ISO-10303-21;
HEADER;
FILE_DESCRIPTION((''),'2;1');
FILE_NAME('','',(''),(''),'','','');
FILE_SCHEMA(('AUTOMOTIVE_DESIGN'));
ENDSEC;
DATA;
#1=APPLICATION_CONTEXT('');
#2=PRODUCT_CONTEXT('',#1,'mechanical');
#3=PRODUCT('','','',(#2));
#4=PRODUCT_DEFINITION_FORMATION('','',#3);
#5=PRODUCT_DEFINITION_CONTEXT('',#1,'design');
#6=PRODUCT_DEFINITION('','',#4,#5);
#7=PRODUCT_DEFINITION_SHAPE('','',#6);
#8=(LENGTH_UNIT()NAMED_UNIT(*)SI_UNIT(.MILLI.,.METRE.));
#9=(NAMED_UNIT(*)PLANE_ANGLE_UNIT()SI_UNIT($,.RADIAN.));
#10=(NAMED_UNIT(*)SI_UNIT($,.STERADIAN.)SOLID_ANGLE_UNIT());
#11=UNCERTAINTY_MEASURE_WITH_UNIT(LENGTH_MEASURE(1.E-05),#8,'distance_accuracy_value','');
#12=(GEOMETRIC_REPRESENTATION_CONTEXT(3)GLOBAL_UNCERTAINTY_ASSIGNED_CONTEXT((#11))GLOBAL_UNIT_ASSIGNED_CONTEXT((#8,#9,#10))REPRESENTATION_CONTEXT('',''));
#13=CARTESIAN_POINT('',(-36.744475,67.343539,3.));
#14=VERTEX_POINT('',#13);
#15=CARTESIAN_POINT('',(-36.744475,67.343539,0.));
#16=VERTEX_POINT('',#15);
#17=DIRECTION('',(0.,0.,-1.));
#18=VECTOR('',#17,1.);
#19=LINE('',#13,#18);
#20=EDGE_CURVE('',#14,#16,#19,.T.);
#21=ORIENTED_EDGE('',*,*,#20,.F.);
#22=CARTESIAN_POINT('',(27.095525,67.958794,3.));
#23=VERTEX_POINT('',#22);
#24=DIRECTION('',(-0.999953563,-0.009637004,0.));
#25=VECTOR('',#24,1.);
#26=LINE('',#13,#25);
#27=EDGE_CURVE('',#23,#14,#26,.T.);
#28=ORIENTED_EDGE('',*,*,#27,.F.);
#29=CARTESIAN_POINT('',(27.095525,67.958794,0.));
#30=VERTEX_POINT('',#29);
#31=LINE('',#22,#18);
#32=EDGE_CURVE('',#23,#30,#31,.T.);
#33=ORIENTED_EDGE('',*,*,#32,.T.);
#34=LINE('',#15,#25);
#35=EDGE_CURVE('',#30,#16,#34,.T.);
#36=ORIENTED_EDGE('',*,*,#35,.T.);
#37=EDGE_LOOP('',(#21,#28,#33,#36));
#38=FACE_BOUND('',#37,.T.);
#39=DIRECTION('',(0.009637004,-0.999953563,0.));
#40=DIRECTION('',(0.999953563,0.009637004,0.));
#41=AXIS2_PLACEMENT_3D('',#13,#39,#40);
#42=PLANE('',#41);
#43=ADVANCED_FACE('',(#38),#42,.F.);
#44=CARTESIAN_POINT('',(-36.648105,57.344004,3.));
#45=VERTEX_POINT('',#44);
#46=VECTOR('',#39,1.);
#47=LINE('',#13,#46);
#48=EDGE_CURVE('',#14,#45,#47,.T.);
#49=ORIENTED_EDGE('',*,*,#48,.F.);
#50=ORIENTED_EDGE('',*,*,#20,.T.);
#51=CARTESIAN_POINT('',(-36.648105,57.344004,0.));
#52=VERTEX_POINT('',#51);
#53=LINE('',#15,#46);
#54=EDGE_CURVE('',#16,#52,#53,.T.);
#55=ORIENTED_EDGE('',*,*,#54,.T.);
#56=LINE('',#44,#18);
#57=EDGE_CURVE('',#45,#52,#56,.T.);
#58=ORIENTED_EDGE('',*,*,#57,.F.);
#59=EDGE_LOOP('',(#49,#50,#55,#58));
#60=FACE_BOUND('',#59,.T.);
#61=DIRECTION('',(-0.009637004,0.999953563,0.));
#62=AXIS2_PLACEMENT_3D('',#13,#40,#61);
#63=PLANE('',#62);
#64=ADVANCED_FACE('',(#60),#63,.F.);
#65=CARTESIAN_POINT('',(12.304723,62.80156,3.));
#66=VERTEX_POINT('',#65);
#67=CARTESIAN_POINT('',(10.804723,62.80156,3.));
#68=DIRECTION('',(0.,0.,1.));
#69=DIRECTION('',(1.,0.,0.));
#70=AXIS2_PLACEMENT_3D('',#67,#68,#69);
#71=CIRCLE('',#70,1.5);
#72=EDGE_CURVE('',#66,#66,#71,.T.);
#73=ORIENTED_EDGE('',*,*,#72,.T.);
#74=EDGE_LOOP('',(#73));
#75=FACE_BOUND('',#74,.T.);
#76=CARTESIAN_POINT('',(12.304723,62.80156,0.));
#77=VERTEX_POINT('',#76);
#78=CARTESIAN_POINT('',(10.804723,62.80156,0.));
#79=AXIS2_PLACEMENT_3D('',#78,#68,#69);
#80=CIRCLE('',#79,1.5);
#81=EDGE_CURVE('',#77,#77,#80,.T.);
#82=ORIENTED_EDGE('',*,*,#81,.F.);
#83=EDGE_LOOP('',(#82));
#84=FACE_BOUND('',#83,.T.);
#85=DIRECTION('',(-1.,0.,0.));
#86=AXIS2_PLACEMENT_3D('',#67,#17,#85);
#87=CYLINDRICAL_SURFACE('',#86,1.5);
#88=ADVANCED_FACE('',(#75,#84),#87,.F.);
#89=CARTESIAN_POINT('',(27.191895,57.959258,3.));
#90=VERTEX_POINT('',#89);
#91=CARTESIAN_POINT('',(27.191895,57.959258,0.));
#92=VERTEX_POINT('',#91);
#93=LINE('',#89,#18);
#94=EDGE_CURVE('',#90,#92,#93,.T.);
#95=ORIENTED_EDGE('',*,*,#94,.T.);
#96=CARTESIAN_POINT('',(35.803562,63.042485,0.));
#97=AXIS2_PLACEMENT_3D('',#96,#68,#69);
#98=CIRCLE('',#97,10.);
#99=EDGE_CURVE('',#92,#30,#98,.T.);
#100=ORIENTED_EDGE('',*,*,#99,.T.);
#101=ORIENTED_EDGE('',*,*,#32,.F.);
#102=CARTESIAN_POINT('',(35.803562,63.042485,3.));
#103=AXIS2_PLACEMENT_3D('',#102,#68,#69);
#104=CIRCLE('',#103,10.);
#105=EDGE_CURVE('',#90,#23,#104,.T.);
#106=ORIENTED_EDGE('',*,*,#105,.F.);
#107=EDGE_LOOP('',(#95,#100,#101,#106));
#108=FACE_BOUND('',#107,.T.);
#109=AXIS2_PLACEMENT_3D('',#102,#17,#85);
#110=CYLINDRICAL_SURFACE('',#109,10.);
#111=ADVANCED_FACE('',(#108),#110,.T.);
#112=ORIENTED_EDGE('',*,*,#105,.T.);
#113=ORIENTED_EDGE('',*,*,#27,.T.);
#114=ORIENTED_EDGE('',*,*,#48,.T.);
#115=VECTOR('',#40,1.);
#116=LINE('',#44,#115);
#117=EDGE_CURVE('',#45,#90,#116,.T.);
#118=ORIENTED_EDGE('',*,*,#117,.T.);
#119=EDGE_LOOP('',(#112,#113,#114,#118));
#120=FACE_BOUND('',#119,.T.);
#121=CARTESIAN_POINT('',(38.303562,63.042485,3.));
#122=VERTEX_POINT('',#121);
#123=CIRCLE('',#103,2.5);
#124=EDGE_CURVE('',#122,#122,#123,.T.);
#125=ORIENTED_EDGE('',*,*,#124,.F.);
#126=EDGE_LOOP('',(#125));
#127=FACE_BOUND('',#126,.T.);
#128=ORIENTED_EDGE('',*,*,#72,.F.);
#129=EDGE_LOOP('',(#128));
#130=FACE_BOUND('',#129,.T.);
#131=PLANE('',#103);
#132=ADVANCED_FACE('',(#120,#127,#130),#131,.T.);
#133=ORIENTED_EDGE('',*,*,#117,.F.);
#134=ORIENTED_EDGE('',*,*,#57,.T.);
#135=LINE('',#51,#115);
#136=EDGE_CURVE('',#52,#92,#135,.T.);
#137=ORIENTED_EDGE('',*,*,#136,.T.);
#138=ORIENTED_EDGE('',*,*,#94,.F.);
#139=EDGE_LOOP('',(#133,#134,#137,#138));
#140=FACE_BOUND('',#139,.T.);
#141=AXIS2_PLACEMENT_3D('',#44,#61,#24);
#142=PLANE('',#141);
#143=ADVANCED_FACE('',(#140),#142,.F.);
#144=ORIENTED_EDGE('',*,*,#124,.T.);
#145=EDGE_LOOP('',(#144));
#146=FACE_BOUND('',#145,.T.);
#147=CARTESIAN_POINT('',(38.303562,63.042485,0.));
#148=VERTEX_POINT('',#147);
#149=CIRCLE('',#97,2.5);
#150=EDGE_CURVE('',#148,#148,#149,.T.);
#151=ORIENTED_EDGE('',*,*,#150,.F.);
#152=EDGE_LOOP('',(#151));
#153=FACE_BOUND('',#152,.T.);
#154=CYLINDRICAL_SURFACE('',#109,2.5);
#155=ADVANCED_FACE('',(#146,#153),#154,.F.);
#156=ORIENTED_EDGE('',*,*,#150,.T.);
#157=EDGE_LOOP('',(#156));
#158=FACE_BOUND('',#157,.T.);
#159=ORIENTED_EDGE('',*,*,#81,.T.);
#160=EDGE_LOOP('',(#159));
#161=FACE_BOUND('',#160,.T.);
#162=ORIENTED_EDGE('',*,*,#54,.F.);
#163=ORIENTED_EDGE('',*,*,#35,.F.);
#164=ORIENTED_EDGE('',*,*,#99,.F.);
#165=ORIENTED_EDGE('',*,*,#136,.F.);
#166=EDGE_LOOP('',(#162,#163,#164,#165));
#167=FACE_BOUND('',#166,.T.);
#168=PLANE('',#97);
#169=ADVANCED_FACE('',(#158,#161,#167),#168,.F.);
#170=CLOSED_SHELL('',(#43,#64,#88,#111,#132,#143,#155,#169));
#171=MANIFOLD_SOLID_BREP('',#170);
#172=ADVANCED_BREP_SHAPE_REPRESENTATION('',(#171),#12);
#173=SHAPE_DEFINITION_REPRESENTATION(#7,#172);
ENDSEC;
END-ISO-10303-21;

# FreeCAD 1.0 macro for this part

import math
import FreeCAD as App
import Part
import Sketcher
Q = App.Units.Quantity

doc = App.newDocument("Part")
body = doc.addObject("PartDesign::Body", "Body")

sketch1 = body.newObject("Sketcher::SketchObject", "Sketch")
sketch1.AttachmentSupport = (doc.getObject("XY_Plane"), [""])
sketch1.MapMode = "FlatFace"
sketch1.addGeometry([
    Part.LineSegment(App.Vector(27.1, 68, 0), App.Vector(-36.7, 67.3, 0)),
    Part.LineSegment(App.Vector(-36.7, 67.3, 0), App.Vector(-36.6, 57.3, 0)),
    Part.LineSegment(App.Vector(-36.6, 57.3, 0), App.Vector(27.2, 58, 0)),
    Part.ArcOfCircle(Part.Circle(App.Vector(35.8, 63, 0), App.Vector(0, 0, 1), 10), math.radians(-149), math.radians(151)),
    Part.Circle(App.Vector(10.8, 62.8, 0), App.Vector(0, 0, 1), 1.5),
    Part.Circle(App.Vector(35.8, 63, 0), App.Vector(0, 0, 1), 2.5),
], False)
sketch1.addConstraint([
    Sketcher.Constraint("Coincident", 0, 2, 1, 1),
    Sketcher.Constraint("Coincident", 1, 2, 2, 1),
    Sketcher.Constraint("Coincident", 2, 2, 3, 1),
    Sketcher.Constraint("Coincident", 3, 2, 0, 1),
    Sketcher.Constraint("Coincident", 5, 3, 3, 3),
    Sketcher.Constraint("Perpendicular", 0, 1),
    Sketcher.Constraint("Perpendicular", 1, 2),
    Sketcher.Constraint("Equal", 0, 2),
    Sketcher.Constraint("Diameter", 4, Q("3 mm")),
    Sketcher.Constraint("Diameter", 5, Q("5 mm")),
    Sketcher.Constraint("Radius", 3, Q("10 mm")),
    Sketcher.Constraint("Distance", 1, Q("10 mm")),
    Sketcher.Constraint("DistanceX", 1, 2, 2, 2, Q("63.84 mm")),
    Sketcher.Constraint("DistanceY", 2, 2, 4, 3, Q("4.842302 mm")),
    Sketcher.Constraint("DistanceY", -1, 1, 4, 3, Q("62.80156 mm")),
    Sketcher.Constraint("DistanceY", -1, 1, 0, 2, Q("67.343539 mm")),
    Sketcher.Constraint("DistanceX", 4, 3, 3, 3, Q("24.998839 mm")),
    Sketcher.Constraint("DistanceX", -1, 1, 3, 3, Q("35.803562 mm")),
])
pad1 = body.newObject("PartDesign::Pad", "Pad")
pad1.Profile = sketch1
pad1.Length = 3

doc.recompute()
